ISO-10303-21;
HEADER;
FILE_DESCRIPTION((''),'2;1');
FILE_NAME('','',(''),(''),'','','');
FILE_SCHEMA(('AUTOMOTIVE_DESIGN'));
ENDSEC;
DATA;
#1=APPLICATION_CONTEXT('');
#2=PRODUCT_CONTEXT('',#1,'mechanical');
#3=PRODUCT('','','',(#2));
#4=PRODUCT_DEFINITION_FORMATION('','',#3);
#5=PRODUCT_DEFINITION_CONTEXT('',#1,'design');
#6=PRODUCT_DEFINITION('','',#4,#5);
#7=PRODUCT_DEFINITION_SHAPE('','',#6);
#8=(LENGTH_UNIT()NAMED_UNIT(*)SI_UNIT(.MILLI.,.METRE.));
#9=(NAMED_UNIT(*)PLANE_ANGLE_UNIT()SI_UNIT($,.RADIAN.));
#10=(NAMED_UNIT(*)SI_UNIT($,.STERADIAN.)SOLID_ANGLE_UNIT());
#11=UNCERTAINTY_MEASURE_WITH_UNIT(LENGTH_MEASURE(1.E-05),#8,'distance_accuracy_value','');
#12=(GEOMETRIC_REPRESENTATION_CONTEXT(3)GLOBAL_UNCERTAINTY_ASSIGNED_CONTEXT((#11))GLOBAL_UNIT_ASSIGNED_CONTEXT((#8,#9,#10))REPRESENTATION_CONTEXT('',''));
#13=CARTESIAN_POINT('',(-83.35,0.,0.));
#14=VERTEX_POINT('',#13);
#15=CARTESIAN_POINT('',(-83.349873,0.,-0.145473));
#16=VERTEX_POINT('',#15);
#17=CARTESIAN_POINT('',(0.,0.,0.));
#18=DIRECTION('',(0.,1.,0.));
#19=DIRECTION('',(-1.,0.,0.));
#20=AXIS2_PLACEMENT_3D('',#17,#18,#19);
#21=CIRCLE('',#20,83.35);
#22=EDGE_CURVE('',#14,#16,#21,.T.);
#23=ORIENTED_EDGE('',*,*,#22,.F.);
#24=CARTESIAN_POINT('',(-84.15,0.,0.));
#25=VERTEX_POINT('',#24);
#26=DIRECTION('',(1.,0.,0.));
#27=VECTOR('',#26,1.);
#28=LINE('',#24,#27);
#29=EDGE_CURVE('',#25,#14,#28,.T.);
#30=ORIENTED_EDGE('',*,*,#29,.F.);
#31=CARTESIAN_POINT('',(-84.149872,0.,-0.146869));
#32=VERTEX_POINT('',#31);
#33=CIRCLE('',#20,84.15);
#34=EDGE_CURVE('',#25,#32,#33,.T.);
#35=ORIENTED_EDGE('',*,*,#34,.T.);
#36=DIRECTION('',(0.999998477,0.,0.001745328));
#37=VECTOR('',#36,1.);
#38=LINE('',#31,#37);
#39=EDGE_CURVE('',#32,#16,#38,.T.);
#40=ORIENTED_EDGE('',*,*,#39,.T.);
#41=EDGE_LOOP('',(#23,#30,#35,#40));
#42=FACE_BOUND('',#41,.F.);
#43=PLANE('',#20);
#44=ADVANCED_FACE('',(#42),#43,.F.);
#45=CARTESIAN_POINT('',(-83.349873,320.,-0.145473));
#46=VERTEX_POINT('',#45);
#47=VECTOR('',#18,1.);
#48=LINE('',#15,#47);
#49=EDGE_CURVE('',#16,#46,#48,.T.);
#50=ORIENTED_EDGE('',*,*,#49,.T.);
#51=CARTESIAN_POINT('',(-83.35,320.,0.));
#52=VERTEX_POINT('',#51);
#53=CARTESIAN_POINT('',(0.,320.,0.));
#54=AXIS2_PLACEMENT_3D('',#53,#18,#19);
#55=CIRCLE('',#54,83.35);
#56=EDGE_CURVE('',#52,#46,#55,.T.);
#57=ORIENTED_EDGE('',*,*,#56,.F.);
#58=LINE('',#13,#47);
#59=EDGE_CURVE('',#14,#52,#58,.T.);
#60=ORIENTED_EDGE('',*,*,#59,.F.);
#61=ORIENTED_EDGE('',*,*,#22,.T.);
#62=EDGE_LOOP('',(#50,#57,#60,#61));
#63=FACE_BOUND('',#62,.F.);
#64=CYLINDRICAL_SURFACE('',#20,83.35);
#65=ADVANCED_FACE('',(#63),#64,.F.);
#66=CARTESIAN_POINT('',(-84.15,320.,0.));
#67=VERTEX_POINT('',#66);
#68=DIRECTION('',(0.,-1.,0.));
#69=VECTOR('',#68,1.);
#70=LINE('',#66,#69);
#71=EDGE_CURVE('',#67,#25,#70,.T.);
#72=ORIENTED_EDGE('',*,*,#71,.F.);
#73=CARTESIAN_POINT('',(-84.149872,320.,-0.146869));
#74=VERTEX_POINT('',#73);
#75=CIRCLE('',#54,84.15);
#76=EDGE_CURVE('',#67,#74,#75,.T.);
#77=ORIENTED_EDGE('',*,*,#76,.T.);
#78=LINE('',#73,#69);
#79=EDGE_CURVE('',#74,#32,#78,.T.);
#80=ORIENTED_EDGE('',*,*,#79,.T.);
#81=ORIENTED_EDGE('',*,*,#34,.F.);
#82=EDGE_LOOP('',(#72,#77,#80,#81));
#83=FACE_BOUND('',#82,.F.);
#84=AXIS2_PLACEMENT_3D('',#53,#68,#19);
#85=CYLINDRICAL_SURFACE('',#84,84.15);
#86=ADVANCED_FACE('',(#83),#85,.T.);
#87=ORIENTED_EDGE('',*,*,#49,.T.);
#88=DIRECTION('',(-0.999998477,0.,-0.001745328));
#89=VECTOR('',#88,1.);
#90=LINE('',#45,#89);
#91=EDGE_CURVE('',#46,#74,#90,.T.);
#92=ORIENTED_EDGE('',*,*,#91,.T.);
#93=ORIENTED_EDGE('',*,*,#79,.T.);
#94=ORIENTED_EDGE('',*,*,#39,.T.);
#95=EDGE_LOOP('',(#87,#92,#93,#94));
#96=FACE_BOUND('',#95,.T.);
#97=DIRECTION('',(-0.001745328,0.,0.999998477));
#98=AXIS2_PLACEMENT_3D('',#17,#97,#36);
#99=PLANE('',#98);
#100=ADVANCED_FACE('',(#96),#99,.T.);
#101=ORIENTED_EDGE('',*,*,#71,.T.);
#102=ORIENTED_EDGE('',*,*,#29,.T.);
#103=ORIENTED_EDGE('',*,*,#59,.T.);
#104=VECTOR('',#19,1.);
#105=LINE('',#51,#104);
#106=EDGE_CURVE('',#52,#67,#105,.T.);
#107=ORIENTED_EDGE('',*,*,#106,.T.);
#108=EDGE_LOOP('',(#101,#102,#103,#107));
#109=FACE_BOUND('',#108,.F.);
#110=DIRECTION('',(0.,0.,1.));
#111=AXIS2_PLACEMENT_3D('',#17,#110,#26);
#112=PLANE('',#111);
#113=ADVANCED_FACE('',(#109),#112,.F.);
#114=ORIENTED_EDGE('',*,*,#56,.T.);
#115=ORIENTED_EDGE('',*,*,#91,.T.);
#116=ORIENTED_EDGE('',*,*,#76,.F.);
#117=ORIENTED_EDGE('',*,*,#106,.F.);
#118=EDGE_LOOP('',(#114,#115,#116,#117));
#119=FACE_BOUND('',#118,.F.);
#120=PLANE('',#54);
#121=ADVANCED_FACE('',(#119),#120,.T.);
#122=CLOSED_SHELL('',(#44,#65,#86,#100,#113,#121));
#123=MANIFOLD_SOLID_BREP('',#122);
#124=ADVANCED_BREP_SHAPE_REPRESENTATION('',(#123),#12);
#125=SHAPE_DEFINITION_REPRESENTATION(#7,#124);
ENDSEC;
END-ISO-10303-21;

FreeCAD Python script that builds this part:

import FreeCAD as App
import Part
import Sketcher
from FreeCAD import Vector

doc = App.newDocument("Part")
body = doc.addObject("PartDesign::Body", "Body")

# Sketch on XY plane
sketch1 = body.newObject("Sketcher::SketchObject", "Sketch")
sketch1.AttachmentSupport = (doc.getObject("XY_Plane"), [""])
sketch1.MapMode = "FlatFace"
sketch1.addGeometry([
    Part.LineSegment(Vector(-83.3, 0, 0), Vector(-83.3, 320, 0)),
    Part.LineSegment(Vector(-83.3, 320, 0), Vector(-84.2, 320, 0)),
    Part.LineSegment(Vector(-84.2, 320, 0), Vector(-84.2, 0, 0)),
    Part.LineSegment(Vector(-84.2, 0, 0), Vector(-83.3, 0, 0)),
], False)
sketch1.addConstraint([
    Sketcher.Constraint("Coincident", 0, 2, 1, 1),
    Sketcher.Constraint("Coincident", 1, 2, 2, 1),
    Sketcher.Constraint("Coincident", 2, 2, 3, 1),
    Sketcher.Constraint("Coincident", 3, 2, 0, 1),
    Sketcher.Constraint("Vertical", 0),
    Sketcher.Constraint("Horizontal", 1),
    Sketcher.Constraint("Vertical", 2),
    Sketcher.Constraint("Horizontal", 3),
    Sketcher.Constraint("PointOnObject", 2, 2, -1),
    Sketcher.Constraint("DistanceY", 0, 1, 0, 2, 320.0),
    Sketcher.Constraint("DistanceX", 1, 2, 1, 1, 0.8),
    Sketcher.Constraint("DistanceX", 0, 2, -1, 1, 83.35),
])
revolution = body.newObject("PartDesign::Revolution", "Revolution")
revolution.Profile = sketch1
revolution.ReferenceAxis = (sketch1, ["V_Axis"])
revolution.Angle = 359.9

doc.recompute()
